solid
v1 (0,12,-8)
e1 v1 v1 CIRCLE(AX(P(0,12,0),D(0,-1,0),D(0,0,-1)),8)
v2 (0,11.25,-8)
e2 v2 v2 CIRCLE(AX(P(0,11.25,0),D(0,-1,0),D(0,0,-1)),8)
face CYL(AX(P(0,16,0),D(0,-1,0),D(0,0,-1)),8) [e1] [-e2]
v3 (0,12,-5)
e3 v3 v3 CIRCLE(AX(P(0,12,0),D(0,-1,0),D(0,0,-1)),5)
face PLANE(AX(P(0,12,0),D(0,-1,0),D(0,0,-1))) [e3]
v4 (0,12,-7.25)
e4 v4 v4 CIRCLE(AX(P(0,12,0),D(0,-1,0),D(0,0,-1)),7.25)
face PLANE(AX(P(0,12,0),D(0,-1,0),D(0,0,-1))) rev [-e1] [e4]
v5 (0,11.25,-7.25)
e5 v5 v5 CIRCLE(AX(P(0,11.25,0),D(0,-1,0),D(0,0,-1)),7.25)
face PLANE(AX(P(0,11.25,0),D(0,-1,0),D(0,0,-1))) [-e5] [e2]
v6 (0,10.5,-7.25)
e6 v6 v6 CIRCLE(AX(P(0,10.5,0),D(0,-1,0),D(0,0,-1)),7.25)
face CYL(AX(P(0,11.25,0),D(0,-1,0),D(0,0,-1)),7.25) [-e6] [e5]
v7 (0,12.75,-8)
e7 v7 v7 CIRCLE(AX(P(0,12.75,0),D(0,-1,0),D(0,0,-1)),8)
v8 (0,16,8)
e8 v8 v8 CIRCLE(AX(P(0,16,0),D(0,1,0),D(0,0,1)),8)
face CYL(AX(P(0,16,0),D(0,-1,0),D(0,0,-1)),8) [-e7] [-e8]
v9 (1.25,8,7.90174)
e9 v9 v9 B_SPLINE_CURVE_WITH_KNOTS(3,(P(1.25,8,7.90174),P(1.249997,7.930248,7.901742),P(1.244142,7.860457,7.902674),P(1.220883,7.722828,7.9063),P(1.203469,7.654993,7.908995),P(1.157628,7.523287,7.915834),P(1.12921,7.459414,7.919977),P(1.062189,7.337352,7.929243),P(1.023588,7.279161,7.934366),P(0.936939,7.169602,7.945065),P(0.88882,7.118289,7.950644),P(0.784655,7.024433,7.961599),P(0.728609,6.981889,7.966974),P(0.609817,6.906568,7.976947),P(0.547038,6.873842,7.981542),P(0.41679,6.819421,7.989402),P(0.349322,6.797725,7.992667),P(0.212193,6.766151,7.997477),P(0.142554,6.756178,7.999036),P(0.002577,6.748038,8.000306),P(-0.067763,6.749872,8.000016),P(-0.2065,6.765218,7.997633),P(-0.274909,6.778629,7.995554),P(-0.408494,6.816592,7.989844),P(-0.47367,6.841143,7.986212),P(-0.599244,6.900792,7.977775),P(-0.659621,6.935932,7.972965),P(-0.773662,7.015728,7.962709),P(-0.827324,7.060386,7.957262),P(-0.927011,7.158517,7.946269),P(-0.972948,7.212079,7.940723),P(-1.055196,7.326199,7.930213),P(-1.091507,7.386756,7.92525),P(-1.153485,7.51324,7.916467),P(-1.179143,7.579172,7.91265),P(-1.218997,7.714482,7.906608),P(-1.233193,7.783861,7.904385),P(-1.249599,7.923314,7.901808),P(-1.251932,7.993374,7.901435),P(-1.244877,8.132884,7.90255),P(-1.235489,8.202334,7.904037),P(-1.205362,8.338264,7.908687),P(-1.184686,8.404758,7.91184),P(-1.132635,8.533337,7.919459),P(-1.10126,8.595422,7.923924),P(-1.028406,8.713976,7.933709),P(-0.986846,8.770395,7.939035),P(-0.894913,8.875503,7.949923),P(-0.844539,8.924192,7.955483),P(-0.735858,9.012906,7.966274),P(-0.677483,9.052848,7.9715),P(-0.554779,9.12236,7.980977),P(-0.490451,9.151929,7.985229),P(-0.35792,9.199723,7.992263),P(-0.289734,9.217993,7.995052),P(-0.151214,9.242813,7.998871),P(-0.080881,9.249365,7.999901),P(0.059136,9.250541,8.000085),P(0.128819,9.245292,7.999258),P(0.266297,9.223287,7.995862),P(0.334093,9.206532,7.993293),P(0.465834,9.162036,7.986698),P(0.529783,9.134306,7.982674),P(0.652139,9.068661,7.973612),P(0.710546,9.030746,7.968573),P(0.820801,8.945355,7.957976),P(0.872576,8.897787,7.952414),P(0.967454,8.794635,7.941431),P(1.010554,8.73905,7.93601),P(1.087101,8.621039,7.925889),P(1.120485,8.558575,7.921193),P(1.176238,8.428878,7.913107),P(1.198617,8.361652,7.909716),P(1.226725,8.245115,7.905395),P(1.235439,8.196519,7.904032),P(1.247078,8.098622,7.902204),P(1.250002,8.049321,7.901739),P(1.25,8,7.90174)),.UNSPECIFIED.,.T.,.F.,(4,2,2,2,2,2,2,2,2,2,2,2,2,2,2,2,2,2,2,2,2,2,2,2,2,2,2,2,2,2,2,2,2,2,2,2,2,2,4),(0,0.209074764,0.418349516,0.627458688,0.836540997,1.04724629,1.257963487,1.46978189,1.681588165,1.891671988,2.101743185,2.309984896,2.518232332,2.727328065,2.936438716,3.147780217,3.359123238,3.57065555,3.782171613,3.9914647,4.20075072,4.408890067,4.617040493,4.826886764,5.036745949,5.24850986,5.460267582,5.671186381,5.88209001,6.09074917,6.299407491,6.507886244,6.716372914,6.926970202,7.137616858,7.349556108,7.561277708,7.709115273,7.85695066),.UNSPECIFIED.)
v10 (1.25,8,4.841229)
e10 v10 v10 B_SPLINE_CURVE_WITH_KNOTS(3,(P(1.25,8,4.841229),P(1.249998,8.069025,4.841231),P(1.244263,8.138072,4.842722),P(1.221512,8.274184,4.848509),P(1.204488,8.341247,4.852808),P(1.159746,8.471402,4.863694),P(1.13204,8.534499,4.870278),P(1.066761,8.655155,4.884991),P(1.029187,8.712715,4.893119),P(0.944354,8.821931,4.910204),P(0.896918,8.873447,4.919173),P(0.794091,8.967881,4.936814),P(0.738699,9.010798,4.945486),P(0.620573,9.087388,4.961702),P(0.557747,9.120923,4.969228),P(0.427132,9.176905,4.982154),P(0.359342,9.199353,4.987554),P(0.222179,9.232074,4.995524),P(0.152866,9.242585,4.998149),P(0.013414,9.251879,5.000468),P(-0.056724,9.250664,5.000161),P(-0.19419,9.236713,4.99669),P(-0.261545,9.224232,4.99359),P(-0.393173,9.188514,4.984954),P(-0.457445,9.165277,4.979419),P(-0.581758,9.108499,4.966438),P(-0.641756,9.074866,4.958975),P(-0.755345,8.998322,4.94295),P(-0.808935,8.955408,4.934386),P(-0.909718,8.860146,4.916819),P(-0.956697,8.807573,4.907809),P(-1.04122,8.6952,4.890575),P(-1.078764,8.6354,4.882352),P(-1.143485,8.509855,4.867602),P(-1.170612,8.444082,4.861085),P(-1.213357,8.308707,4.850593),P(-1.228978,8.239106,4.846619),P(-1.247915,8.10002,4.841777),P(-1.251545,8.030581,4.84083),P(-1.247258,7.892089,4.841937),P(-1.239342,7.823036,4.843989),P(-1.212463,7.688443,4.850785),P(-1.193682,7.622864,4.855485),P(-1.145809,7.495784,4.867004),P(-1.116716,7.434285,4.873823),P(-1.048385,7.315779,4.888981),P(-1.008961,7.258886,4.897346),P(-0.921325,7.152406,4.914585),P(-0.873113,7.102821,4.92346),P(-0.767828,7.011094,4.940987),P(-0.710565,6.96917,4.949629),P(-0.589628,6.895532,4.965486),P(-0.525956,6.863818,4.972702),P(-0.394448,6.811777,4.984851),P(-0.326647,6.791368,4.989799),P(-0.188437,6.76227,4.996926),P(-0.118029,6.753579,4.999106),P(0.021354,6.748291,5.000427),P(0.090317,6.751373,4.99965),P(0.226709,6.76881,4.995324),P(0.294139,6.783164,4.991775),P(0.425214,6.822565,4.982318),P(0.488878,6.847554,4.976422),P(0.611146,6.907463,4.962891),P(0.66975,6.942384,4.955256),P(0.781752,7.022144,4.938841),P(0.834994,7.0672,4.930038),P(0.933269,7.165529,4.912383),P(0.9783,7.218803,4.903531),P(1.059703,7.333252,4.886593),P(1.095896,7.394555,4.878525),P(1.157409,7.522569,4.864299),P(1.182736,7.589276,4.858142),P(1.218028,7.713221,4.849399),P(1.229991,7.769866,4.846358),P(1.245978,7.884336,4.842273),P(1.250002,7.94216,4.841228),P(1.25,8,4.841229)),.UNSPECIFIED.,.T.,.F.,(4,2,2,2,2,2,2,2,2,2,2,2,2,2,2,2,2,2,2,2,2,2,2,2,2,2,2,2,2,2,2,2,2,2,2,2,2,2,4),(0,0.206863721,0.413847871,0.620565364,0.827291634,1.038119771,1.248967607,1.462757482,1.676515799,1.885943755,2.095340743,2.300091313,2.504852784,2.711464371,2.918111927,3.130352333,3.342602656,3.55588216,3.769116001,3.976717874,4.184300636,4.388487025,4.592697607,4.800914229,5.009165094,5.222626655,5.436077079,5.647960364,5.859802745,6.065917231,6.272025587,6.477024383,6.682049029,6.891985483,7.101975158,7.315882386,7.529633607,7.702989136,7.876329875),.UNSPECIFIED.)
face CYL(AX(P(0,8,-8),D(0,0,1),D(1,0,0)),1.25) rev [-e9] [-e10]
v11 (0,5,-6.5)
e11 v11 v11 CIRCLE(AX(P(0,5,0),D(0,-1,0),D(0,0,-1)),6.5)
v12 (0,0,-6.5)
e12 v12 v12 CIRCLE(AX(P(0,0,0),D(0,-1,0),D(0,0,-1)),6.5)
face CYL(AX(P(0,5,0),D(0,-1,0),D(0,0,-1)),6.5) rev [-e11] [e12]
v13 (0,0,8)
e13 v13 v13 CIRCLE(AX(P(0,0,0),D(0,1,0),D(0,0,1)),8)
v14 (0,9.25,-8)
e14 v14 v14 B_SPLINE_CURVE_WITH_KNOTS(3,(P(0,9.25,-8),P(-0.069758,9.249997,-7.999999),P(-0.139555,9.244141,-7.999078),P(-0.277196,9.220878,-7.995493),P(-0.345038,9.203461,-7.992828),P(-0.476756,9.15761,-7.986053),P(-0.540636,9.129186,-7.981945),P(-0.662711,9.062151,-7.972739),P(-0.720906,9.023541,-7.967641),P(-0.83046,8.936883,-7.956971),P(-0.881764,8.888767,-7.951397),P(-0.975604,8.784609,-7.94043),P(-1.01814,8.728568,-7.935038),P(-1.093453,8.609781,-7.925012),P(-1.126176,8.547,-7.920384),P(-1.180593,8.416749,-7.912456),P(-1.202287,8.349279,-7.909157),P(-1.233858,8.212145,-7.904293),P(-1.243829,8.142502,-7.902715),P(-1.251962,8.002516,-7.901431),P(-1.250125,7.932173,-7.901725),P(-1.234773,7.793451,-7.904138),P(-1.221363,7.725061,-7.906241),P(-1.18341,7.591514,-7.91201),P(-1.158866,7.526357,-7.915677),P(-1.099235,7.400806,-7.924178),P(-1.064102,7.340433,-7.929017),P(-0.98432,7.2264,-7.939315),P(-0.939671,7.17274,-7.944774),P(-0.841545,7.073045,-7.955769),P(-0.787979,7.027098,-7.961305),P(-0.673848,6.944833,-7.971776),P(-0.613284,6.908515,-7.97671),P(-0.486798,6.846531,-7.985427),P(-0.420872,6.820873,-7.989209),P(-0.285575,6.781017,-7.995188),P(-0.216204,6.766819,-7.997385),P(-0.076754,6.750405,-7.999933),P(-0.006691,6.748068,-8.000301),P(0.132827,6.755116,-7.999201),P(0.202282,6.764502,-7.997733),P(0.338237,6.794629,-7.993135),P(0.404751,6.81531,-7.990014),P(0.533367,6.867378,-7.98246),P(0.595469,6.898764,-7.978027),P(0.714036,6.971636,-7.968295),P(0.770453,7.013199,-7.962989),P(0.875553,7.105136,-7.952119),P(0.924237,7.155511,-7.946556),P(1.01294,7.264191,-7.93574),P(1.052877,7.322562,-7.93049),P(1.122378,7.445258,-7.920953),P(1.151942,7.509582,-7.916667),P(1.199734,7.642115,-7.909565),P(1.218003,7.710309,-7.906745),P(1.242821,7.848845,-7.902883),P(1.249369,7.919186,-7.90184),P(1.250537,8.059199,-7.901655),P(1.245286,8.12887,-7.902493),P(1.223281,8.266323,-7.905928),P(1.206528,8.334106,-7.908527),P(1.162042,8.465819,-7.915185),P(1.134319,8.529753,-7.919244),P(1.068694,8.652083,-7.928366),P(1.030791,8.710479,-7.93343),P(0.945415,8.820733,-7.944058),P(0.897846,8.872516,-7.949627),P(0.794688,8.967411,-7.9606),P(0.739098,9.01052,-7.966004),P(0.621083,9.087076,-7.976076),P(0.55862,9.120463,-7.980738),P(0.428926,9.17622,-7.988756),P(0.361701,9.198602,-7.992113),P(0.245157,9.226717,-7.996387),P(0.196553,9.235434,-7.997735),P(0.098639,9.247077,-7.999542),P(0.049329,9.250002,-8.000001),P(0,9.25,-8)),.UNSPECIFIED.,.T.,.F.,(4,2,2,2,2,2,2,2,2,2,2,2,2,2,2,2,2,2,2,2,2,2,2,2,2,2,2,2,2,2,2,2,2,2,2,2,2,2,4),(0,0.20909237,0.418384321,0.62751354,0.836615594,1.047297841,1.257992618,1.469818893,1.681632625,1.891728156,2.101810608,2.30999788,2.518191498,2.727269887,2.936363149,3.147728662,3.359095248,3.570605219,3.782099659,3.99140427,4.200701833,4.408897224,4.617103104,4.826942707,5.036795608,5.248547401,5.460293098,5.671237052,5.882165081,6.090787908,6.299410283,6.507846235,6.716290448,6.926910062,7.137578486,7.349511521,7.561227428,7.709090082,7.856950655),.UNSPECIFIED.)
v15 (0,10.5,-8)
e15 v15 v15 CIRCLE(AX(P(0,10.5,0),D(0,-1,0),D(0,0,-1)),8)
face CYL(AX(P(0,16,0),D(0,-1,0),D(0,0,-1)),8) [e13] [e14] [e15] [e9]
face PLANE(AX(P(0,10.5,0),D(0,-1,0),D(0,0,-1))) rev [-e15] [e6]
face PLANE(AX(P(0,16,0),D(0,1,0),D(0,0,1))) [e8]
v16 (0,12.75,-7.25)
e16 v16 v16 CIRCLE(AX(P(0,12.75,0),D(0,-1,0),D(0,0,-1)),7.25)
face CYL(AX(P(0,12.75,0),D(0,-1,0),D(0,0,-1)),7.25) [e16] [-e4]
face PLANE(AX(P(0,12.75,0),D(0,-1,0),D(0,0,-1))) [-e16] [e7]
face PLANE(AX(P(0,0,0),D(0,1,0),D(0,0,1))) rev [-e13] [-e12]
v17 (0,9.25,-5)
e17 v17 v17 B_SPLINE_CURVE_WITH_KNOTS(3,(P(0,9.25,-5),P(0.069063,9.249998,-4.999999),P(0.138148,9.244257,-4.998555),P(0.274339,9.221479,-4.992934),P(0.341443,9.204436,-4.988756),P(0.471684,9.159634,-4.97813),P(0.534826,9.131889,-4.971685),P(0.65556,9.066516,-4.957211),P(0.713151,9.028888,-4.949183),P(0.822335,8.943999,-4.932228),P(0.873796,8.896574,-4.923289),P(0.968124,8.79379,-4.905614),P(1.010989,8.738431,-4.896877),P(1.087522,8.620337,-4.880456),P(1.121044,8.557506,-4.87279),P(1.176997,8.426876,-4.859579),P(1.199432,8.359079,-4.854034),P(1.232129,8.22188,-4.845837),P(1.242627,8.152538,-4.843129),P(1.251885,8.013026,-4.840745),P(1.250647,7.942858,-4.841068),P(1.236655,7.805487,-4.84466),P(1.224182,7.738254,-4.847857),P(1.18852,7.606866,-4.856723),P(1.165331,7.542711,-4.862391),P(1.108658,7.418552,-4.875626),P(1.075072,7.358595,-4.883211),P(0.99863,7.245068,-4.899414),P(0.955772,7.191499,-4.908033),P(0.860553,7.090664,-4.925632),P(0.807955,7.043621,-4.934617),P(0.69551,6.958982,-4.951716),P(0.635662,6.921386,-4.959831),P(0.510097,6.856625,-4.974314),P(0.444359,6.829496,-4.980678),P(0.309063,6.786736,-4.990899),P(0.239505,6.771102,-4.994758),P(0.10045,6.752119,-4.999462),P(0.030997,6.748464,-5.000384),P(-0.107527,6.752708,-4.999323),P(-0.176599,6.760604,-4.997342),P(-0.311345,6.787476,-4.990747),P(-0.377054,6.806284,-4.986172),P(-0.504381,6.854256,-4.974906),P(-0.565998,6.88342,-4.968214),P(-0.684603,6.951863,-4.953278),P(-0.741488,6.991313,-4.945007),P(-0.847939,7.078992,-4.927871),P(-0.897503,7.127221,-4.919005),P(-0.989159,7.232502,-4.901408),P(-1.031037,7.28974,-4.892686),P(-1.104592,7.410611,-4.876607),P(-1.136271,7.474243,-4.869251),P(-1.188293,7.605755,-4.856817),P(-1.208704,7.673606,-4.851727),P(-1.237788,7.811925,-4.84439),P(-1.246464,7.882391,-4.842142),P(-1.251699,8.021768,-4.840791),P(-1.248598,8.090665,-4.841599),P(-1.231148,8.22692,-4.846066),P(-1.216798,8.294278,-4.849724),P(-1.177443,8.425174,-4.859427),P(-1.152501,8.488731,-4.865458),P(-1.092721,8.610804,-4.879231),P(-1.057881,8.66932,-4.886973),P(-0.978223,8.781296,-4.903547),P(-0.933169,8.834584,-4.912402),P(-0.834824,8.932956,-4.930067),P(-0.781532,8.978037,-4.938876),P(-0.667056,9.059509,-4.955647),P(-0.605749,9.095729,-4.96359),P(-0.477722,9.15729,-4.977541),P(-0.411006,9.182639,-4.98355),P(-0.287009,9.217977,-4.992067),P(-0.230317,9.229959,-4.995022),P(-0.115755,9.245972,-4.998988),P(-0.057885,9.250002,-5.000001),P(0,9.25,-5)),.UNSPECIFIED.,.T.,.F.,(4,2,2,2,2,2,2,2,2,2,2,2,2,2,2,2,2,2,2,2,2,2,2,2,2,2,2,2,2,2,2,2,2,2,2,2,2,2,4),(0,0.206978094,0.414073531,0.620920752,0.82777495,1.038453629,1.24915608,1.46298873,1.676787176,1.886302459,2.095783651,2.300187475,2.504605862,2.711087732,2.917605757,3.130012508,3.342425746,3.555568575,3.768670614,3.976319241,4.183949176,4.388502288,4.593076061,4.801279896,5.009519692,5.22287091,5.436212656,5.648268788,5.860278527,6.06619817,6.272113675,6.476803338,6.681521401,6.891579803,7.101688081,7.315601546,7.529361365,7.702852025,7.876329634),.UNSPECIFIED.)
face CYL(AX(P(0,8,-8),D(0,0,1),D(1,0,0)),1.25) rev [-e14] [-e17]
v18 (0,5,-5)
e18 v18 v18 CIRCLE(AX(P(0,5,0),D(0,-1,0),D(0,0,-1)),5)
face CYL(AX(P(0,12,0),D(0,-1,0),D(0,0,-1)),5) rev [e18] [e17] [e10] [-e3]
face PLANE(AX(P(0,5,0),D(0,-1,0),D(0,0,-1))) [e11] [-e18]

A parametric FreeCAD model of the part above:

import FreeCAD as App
import Part
import Sketcher
from FreeCAD import Vector

doc = App.newDocument("Part")
body = doc.addObject("PartDesign::Body", "Body")

sketch1 = doc.addObject("Sketcher::SketchObject", "Sketch")
body.addObject(sketch1)
sketch1.AttachmentSupport = (doc.XZ_Plane, [""])
sketch1.MapMode = "FlatFace"
sketch1.addGeometry(Part.Circle(Vector(0, 0, 0), Vector(0, 0, 1), 8), False)
sketch1.addConstraint(Sketcher.Constraint("Coincident", 0, 3, -1, 1))
sketch1.addConstraint(Sketcher.Constraint("Diameter", 0, 16.0))
pad1 = doc.addObject("PartDesign::Pad", "Pad")
body.addObject(pad1)
pad1.Profile = sketch1
pad1.Length = 16
pad1.Reversed = True

sketch2 = doc.addObject("Sketcher::SketchObject", "Sketch001")
body.addObject(sketch2)
sketch2.AttachmentSupport = (doc.XZ_Plane, [""])
sketch2.MapMode = "FlatFace"
sketch2.addGeometry(Part.Circle(Vector(0, 0, 0), Vector(0, 0, 1), 6), False)
sketch2.addConstraint(Sketcher.Constraint("Coincident", 0, 3, -1, 1))
sketch2.addConstraint(Sketcher.Constraint("Diameter", 0, 13.0))
pocket1 = doc.addObject("PartDesign::Pocket", "Pocket")
body.addObject(pocket1)
pocket1.Profile = sketch2
pocket1.Length = 5

sketch3 = doc.addObject("Sketcher::SketchObject", "Sketch002")
body.addObject(sketch3)
sketch3.AttachmentSupport = (doc.XZ_Plane, [""])
sketch3.MapMode = "FlatFace"
sketch3.addGeometry(Part.Circle(Vector(0, 0, 0), Vector(0, 0, 1), 5), False)
sketch3.addConstraint(Sketcher.Constraint("Coincident", 0, 3, -1, 1))
sketch3.addConstraint(Sketcher.Constraint("Diameter", 0, 10.0))
pocket2 = doc.addObject("PartDesign::Pocket", "Pocket001")
body.addObject(pocket2)
pocket2.Profile = sketch3
pocket2.Length = 12

sketch4 = doc.addObject("Sketcher::SketchObject", "Sketch003")
body.addObject(sketch4)
sketch4.AttachmentSupport = (doc.XY_Plane, [""])
sketch4.MapMode = "FlatFace"
sketch4.addGeometry(Part.Circle(Vector(0, 8, 0), Vector(0, 0, 1), 1.2), False)
sketch4.addConstraint(Sketcher.Constraint("PointOnObject", 0, 3, -2))
sketch4.addConstraint(Sketcher.Constraint("Diameter", 0, 2.5))
sketch4.addConstraint(Sketcher.Constraint("DistanceY", -1, 1, 0, 3, 8.0))
pocket3 = doc.addObject("PartDesign::Pocket", "Pocket002")
body.addObject(pocket3)
pocket3.Profile = sketch4
pocket3.Type = "ThroughAll"
pocket3.Midplane = True

sketch5 = doc.addObject("Sketcher::SketchObject", "Sketch004")
body.addObject(sketch5)
sketch5.AttachmentSupport = (doc.XZ_Plane, [""])
sketch5.MapMode = "FlatFace"
sketch5.AttachmentOffset = App.Placement(Vector(0, 0, -10.5), App.Rotation())
sketch5.addGeometry(Part.Circle(Vector(0, 0, 0), Vector(0, 0, 1), 8), False)
sketch5.addGeometry(Part.Circle(Vector(0, 0, 0), Vector(0, 0, 1), 7), False)
sketch5.addConstraint(Sketcher.Constraint("Coincident", 0, 3, -1, 1))
sketch5.addConstraint(Sketcher.Constraint("Coincident", 1, 3, -1, 1))
sketch5.addConstraint(Sketcher.Constraint("Diameter", 0, 16.0))
sketch5.addConstraint(Sketcher.Constraint("Diameter", 1, 14.5))
pocket4 = doc.addObject("PartDesign::Pocket", "Pocket003")
body.addObject(pocket4)
pocket4.Profile = sketch5
pocket4.Length = 0.75

sketch6 = doc.addObject("Sketcher::SketchObject", "Sketch005")
body.addObject(sketch6)
sketch6.AttachmentSupport = (doc.XZ_Plane, [""])
sketch6.MapMode = "FlatFace"
sketch6.AttachmentOffset = App.Placement(Vector(0, 0, -12), App.Rotation())
sketch6.addGeometry(Part.Circle(Vector(0, 0, 0), Vector(0, 0, 1), 8), False)
sketch6.addGeometry(Part.Circle(Vector(0, 0, 0), Vector(0, 0, 1), 7), False)
sketch6.addConstraint(Sketcher.Constraint("Coincident", 0, 3, -1, 1))
sketch6.addConstraint(Sketcher.Constraint("Coincident", 1, 3, -1, 1))
sketch6.addConstraint(Sketcher.Constraint("Diameter", 0, 16.0))
sketch6.addConstraint(Sketcher.Constraint("Diameter", 1, 14.5))
pocket5 = doc.addObject("PartDesign::Pocket", "Pocket004")
body.addObject(pocket5)
pocket5.Profile = sketch6
pocket5.Length = 0.75

doc.recompute()
